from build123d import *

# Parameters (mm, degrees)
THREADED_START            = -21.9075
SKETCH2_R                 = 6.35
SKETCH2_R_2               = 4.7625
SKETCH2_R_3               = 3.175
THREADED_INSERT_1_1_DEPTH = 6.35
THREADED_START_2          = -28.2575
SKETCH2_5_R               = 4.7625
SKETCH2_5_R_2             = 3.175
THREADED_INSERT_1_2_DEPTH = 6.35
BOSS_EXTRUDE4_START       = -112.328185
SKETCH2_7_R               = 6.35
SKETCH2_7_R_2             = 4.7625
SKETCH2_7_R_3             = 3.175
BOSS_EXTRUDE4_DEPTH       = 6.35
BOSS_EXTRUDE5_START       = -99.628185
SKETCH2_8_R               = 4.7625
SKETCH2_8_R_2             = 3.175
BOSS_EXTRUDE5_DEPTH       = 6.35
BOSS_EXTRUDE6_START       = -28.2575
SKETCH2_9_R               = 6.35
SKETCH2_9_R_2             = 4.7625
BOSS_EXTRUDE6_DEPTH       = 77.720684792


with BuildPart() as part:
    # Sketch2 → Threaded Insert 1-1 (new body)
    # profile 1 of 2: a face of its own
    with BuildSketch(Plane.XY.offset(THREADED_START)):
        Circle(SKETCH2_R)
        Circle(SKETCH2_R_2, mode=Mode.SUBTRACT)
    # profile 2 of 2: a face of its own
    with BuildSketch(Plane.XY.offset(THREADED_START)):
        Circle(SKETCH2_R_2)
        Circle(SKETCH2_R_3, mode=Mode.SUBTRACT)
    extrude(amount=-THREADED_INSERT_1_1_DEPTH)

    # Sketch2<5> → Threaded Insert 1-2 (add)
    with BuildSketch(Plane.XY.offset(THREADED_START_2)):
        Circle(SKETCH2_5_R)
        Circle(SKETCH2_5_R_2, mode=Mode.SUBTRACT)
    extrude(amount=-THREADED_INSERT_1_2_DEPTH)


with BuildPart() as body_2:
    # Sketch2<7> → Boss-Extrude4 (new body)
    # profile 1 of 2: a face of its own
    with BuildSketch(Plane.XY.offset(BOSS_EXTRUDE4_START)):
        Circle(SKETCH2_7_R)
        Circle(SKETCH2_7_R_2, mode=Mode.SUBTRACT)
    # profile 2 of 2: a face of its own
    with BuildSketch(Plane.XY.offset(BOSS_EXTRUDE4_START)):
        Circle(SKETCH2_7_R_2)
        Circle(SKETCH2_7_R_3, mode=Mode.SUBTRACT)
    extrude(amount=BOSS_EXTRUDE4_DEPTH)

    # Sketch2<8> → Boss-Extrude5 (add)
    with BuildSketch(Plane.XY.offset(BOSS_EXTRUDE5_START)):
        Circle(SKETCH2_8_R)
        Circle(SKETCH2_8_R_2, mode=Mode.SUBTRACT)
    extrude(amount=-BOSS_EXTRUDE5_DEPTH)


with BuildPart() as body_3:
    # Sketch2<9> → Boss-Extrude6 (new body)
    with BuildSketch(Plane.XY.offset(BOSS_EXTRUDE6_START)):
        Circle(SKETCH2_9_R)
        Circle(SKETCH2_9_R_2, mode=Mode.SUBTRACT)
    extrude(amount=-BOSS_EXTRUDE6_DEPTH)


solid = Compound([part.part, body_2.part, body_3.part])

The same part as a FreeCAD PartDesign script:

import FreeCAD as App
import Part
import Sketcher
Q = App.Units.Quantity

doc = App.newDocument("Part")
params = doc.addObject("Spreadsheet::Sheet", "Params")
for row, (alias, value) in enumerate([
    ("sketch1_diameter", "0.5 in"),
    ("sketch1_diameter2", "0.25 in"),
    ("pad1_length", "0.25 in"),
    ("sketch2_diameter", "0.25 in"),
    ("sketch2_diameter2", "0.375 in"),
    ("pad2_length", "0.25 in"),
    ("sketch3_diameter", "0.5 in"),
    ("sketch3_diameter2", "0.25 in"),
    ("pad3_length", "0.25 in"),
    ("sketch4_diameter", "0.25 in"),
    ("sketch4_diameter2", "0.375 in"),
    ("pad4_length", "0.25 in"),
    ("sketch5_diameter", "0.5 in"),
    ("sketch5_diameter2", "0.375 in"),
    ("pad5_length", "77.720685 mm"),
], start=1):
    params.set(f"A{row}", alias)
    params.set(f"B{row}", "=" + value)
    params.setAlias(f"B{row}", alias)

body = doc.addObject("PartDesign::Body", "Body")

# Sketch on XY plane
sketch1 = body.newObject("Sketcher::SketchObject", "Sketch")
sketch1.AttachmentSupport = (doc.getObject("XY_Plane"), [""])
sketch1.MapMode = "FlatFace"
sketch1.AttachmentOffset = App.Placement(App.Vector(0, 0, -0.8625 * 25.4), App.Rotation())
sketch1.addGeometry([
    Part.Circle(App.Vector(0, 0, 0), App.Vector(0, 0, 1), 6.3),
    Part.Circle(App.Vector(0, 0, 0), App.Vector(0, 0, 1), 3.2),
], False)
sketch1.addConstraint([
    Sketcher.Constraint("Coincident", 0, 3, -1, 1),
    Sketcher.Constraint("Coincident", 1, 3, -1, 1),
    Sketcher.Constraint("Diameter", 0, Q("0.5 in")),
    Sketcher.Constraint("Diameter", 1, Q("0.25 in")),
])
sketch1.setExpression("Constraints[2]", "Params.sketch1_diameter")
sketch1.setExpression("Constraints[3]", "Params.sketch1_diameter2")
pad1 = body.newObject("PartDesign::Pad", "Pad")
pad1.Profile = sketch1
pad1.setExpression("Length", "Params.pad1_length")
pad1.Reversed = True

# Sketch on XY plane
sketch2 = body.newObject("Sketcher::SketchObject", "Sketch001")
sketch2.AttachmentSupport = (doc.getObject("XY_Plane"), [""])
sketch2.MapMode = "FlatFace"
sketch2.AttachmentOffset = App.Placement(App.Vector(0, 0, -1.1125 * 25.4), App.Rotation())
sketch2.addGeometry([
    Part.Circle(App.Vector(0, 0, 0), App.Vector(0, 0, 1), 4.8),
    Part.Circle(App.Vector(0, 0, 0), App.Vector(0, 0, 1), 3.2),
], False)
sketch2.addConstraint([
    Sketcher.Constraint("Coincident", 0, 3, -1, 1),
    Sketcher.Constraint("Coincident", 1, 3, -1, 1),
    Sketcher.Constraint("Diameter", 1, Q("0.25 in")),
    Sketcher.Constraint("Diameter", 0, Q("0.375 in")),
])
sketch2.setExpression("Constraints[2]", "Params.sketch2_diameter")
sketch2.setExpression("Constraints[3]", "Params.sketch2_diameter2")
pad2 = body.newObject("PartDesign::Pad", "Pad001")
pad2.Profile = sketch2
pad2.setExpression("Length", "Params.pad2_length")
pad2.Reversed = True
body2 = doc.addObject("PartDesign::Body", "Body001")

# Sketch on XY plane
sketch3 = body2.newObject("Sketcher::SketchObject", "Sketch002")
sketch3.AttachmentSupport = (doc.getObject("XY_Plane001"), [""])
sketch3.MapMode = "FlatFace"
sketch3.AttachmentOffset = App.Placement(App.Vector(0, 0, -112.328185), App.Rotation())
sketch3.addGeometry([
    Part.Circle(App.Vector(0, 0, 0), App.Vector(0, 0, 1), 6.3),
    Part.Circle(App.Vector(0, 0, 0), App.Vector(0, 0, 1), 3.2),
], False)
sketch3.addConstraint([
    Sketcher.Constraint("Coincident", 0, 3, -1, 1),
    Sketcher.Constraint("Coincident", 1, 3, -1, 1),
    Sketcher.Constraint("Diameter", 0, Q("0.5 in")),
    Sketcher.Constraint("Diameter", 1, Q("0.25 in")),
])
sketch3.setExpression("Constraints[2]", "Params.sketch3_diameter")
sketch3.setExpression("Constraints[3]", "Params.sketch3_diameter2")
pad3 = body2.newObject("PartDesign::Pad", "Pad002")
pad3.Profile = sketch3
pad3.setExpression("Length", "Params.pad3_length")

# Sketch on XY plane
sketch4 = body2.newObject("Sketcher::SketchObject", "Sketch003")
sketch4.AttachmentSupport = (doc.getObject("XY_Plane001"), [""])
sketch4.MapMode = "FlatFace"
sketch4.AttachmentOffset = App.Placement(App.Vector(0, 0, -99.628185), App.Rotation())
sketch4.addGeometry([
    Part.Circle(App.Vector(0, 0, 0), App.Vector(0, 0, 1), 4.8),
    Part.Circle(App.Vector(0, 0, 0), App.Vector(0, 0, 1), 3.2),
], False)
sketch4.addConstraint([
    Sketcher.Constraint("Coincident", 0, 3, -1, 1),
    Sketcher.Constraint("Coincident", 1, 3, -1, 1),
    Sketcher.Constraint("Diameter", 1, Q("0.25 in")),
    Sketcher.Constraint("Diameter", 0, Q("0.375 in")),
])
sketch4.setExpression("Constraints[2]", "Params.sketch4_diameter")
sketch4.setExpression("Constraints[3]", "Params.sketch4_diameter2")
pad4 = body2.newObject("PartDesign::Pad", "Pad003")
pad4.Profile = sketch4
pad4.setExpression("Length", "Params.pad4_length")
pad4.Reversed = True
body3 = doc.addObject("PartDesign::Body", "Body002")

# Sketch on XY plane
sketch5 = body3.newObject("Sketcher::SketchObject", "Sketch004")
sketch5.AttachmentSupport = (doc.getObject("XY_Plane002"), [""])
sketch5.MapMode = "FlatFace"
sketch5.AttachmentOffset = App.Placement(App.Vector(0, 0, -1.1125 * 25.4), App.Rotation())
sketch5.addGeometry([
    Part.Circle(App.Vector(0, 0, 0), App.Vector(0, 0, 1), 6.3),
    Part.Circle(App.Vector(0, 0, 0), App.Vector(0, 0, 1), 4.8),
], False)
sketch5.addConstraint([
    Sketcher.Constraint("Coincident", 0, 3, -1, 1),
    Sketcher.Constraint("Coincident", 1, 3, -1, 1),
    Sketcher.Constraint("Diameter", 0, Q("0.5 in")),
    Sketcher.Constraint("Diameter", 1, Q("0.375 in")),
])
sketch5.setExpression("Constraints[2]", "Params.sketch5_diameter")
sketch5.setExpression("Constraints[3]", "Params.sketch5_diameter2")
pad5 = body3.newObject("PartDesign::Pad", "Pad004")
pad5.Profile = sketch5
pad5.setExpression("Length", "Params.pad5_length")
pad5.Reversed = True

doc.recompute()
